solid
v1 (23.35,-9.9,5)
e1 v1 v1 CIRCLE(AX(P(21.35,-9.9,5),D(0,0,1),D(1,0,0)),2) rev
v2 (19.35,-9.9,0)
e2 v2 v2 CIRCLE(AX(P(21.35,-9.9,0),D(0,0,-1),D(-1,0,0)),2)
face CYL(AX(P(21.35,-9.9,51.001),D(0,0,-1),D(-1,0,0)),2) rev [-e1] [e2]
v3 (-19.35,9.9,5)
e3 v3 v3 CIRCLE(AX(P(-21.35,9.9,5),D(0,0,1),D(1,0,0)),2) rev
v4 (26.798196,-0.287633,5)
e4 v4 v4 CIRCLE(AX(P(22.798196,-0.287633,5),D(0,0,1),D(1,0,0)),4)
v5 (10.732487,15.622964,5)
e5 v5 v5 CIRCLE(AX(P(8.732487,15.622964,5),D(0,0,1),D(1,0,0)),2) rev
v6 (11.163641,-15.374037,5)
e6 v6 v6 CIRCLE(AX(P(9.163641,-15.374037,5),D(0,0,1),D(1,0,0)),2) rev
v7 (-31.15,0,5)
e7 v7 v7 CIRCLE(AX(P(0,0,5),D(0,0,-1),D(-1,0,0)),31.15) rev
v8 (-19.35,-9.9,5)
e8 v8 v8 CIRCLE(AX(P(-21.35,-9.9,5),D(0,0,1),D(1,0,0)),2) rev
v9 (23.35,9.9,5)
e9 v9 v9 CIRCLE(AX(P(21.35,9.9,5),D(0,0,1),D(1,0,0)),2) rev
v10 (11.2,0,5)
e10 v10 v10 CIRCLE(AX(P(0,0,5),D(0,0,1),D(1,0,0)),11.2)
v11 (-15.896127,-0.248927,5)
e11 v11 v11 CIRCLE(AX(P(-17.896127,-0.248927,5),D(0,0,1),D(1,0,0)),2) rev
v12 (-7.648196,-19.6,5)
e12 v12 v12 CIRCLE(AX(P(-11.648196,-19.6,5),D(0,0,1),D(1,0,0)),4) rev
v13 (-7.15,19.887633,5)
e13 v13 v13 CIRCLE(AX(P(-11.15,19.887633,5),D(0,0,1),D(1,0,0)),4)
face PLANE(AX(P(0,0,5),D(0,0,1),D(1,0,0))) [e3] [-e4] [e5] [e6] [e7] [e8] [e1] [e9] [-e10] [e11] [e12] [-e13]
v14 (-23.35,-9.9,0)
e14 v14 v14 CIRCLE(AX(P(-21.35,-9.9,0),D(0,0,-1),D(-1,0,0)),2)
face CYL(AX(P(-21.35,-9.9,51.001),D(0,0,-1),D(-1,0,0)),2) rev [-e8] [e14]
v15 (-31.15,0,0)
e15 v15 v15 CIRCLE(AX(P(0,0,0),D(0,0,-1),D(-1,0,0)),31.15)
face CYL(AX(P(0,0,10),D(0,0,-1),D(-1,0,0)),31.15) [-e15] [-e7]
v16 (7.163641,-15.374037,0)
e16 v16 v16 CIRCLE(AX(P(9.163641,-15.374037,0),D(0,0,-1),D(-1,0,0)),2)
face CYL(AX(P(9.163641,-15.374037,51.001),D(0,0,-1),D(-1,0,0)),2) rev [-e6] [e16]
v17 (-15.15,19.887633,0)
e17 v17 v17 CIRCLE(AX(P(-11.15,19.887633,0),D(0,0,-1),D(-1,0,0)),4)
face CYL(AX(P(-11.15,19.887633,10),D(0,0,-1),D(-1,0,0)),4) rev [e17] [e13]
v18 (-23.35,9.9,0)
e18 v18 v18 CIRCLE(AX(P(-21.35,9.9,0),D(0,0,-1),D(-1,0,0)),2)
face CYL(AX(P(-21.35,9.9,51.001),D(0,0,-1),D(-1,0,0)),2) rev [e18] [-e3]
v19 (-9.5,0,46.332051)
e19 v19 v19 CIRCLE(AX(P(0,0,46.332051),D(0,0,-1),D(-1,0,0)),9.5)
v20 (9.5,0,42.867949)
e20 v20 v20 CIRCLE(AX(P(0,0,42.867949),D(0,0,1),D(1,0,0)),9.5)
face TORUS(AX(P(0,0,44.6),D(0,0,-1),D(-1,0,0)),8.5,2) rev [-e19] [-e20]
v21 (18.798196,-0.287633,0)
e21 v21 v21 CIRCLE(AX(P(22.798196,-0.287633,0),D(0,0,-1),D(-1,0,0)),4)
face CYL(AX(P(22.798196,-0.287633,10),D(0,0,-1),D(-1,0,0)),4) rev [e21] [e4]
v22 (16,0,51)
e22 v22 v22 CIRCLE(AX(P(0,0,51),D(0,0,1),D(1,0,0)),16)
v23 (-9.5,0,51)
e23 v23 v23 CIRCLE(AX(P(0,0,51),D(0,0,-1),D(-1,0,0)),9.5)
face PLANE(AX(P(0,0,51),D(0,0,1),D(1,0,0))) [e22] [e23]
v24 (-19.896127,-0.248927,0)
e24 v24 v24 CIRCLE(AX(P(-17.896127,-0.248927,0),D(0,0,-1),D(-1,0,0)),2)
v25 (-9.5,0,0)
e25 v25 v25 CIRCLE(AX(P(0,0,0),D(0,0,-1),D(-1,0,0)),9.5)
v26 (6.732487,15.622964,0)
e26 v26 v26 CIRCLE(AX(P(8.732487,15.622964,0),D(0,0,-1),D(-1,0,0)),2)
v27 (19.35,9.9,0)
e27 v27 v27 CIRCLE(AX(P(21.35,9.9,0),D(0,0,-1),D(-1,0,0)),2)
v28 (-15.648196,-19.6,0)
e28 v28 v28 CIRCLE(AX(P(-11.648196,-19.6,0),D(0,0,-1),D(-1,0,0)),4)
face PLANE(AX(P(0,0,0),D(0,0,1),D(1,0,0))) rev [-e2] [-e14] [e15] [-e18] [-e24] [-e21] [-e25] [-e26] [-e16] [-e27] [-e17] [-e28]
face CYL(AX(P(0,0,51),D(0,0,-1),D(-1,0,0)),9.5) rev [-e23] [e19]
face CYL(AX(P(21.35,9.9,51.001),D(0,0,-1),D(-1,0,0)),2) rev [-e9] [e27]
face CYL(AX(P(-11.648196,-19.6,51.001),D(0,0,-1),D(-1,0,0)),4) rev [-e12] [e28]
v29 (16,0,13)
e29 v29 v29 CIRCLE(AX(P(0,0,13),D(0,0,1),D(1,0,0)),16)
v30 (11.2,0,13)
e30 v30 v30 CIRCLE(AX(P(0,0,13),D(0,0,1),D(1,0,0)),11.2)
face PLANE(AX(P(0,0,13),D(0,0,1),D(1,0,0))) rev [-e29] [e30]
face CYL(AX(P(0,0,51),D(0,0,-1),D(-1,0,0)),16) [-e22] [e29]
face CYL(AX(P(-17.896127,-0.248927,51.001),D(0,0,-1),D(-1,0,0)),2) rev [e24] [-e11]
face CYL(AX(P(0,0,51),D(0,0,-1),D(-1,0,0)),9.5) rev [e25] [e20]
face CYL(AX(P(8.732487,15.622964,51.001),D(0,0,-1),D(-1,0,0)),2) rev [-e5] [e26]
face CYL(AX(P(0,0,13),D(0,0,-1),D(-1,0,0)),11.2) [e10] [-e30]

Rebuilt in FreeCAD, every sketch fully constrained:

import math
import FreeCAD as App
import Part
import Sketcher

V = App.Vector


def edges_at(feature, points):
    """Names of the edges that pass closest to the given points."""
    edges = feature.Shape.Edges
    near = lambda p: min(range(len(edges)), key=lambda i: edges[i].distToShape(Part.Vertex(*p))[0])
    return sorted({f"Edge{near(p) + 1}" for p in points})


def add_polygon(sketch, points):
    """Adds a closed chain of lines whose ends are joined by coincident constraints."""
    first, n = sketch.GeometryCount, len(points)
    for a, b in zip(points, points[1:] + points[:1]):
        sketch.addGeometry(Part.LineSegment(App.Vector(*a, 0), App.Vector(*b, 0)), False)
    for i in range(n):
        sketch.addConstraint(Sketcher.Constraint("Coincident", first + i, 2, first + (i + 1) % n, 1))

doc = App.newDocument("Part")
params = doc.addObject("Spreadsheet::Sheet", "Params")
for row, (alias, value) in enumerate([
    ("sketch1_diameter", "63.3 mm"),
    ("pad1_length", "5 mm"),
    ("chamfer_size", "0.5 mm"),
    ("sketch2_diameter", "22.4 mm"),
    ("pad2_length", "8 mm"),
    ("sketch3_diameter", "32 mm"),
    ("pad3_length", "38 mm"),
    ("sketch4_diameter", "19 mm"),
    ("sketch5_diameter", "4 mm"),
    ("sketch6_diameter", "4 mm"),
    ("sketch7_diameter", "4 mm"),
    ("sketch8_diameter", "4 mm"),
    ("sketch9_diameter", "8 mm"),
    ("sketch10_diameter", "4 mm"),
    ("sketch11_diameter", "4 mm"),
    ("sketch12_diameter", "4 mm"),
    ("sketch13_radius", "2 mm"),
    ("groove_angle", "360 deg"),
    ("sketch14_diameter", "8 mm"),
    ("sketch14_diameter2", "62.3 mm"),
    ("pocket10_length", "10 mm"),
], start=1):
    params.set(f"A{row}", alias)
    params.set(f"B{row}", "=" + value)
    params.setAlias(f"B{row}", alias)

body = doc.addObject("PartDesign::Body", "Body")

# Sketch on XY plane
sketch1 = body.newObject("Sketcher::SketchObject", "Sketch")
sketch1.AttachmentSupport = (doc.getObject("XY_Plane"), [""])
sketch1.MapMode = "FlatFace"
sketch1.addGeometry(Part.Circle(V(0, 0, 0), V(0, 0, 1), 32), False)
sketch1.addConstraint([
    Sketcher.Constraint("Coincident", 0, 3, -1, 1),
    Sketcher.Constraint("Diameter", 0, 63.3),
])
sketch1.setExpression("Constraints[1]", "Params.sketch1_diameter")
pad1 = body.newObject("PartDesign::Pad", "Pad")
pad1.Profile = sketch1
pad1.setExpression("Length", "Params.pad1_length")
doc.recompute()

chamfer = body.newObject("PartDesign::Chamfer", "Chamfer")
chamfer.Base = (pad1, edges_at(pad1, [(-31.65, 0, 0), (-31.65, 0, 5)]))
chamfer.setExpression("Size", "Params.chamfer_size")

# Sketch on XY plane
sketch2 = body.newObject("Sketcher::SketchObject", "Sketch001")
sketch2.AttachmentSupport = (doc.getObject("XY_Plane"), [""])
sketch2.MapMode = "FlatFace"
sketch2.AttachmentOffset = App.Placement(V(0, 0, 5), App.Rotation())
sketch2.addGeometry(Part.Circle(V(0, 0, 0), V(0, 0, 1), 11), False)
sketch2.addConstraint([
    Sketcher.Constraint("Coincident", 0, 3, -1, 1),
    Sketcher.Constraint("Diameter", 0, 22.4),
])
sketch2.setExpression("Constraints[1]", "Params.sketch2_diameter")
pad2 = body.newObject("PartDesign::Pad", "Pad001")
pad2.Profile = sketch2
pad2.setExpression("Length", "Params.pad2_length")

# Sketch on XY plane
sketch3 = body.newObject("Sketcher::SketchObject", "Sketch002")
sketch3.AttachmentSupport = (doc.getObject("XY_Plane"), [""])
sketch3.MapMode = "FlatFace"
sketch3.AttachmentOffset = App.Placement(V(0, 0, 13), App.Rotation())
sketch3.addGeometry(Part.Circle(V(0, 0, 0), V(0, 0, 1), 16), False)
sketch3.addConstraint([
    Sketcher.Constraint("Coincident", 0, 3, -1, 1),
    Sketcher.Constraint("Diameter", 0, 32.0),
])
sketch3.setExpression("Constraints[1]", "Params.sketch3_diameter")
pad3 = body.newObject("PartDesign::Pad", "Pad002")
pad3.Profile = sketch3
pad3.setExpression("Length", "Params.pad3_length")

# Sketch on XY plane
sketch4 = body.newObject("Sketcher::SketchObject", "Sketch003")
sketch4.AttachmentSupport = (doc.getObject("XY_Plane"), [""])
sketch4.MapMode = "FlatFace"
sketch4.addGeometry(Part.Circle(V(0, 0, 0), V(0, 0, 1), 10), False)
sketch4.addConstraint([
    Sketcher.Constraint("Coincident", 0, 3, -1, 1),
    Sketcher.Constraint("Diameter", 0, 19.0),
])
sketch4.setExpression("Constraints[1]", "Params.sketch4_diameter")
pocket1 = body.newObject("PartDesign::Pocket", "Pocket")
pocket1.Profile = sketch4
pocket1.Type = "ThroughAll"
pocket1.Reversed = True

# Sketch on XY plane
sketch5 = body.newObject("Sketcher::SketchObject", "Sketch004")
sketch5.AttachmentSupport = (doc.getObject("XY_Plane"), [""])
sketch5.MapMode = "FlatFace"
sketch5.addGeometry(Part.Circle(V(-21.4, 9.9, 0), V(0, 0, 1), 2), False)
sketch5.addConstraint([
    Sketcher.Constraint("Diameter", 0, 4.0),
    Sketcher.Constraint("DistanceY", -1, 1, 0, 3, 9.9),
    Sketcher.Constraint("DistanceX", 0, 3, -1, 1, 21.35),
])
sketch5.setExpression("Constraints[0]", "Params.sketch5_diameter")
pocket2 = body.newObject("PartDesign::Pocket", "Pocket001")
pocket2.Profile = sketch5
pocket2.Type = "UpToFirst"
pocket2.Reversed = True

# Sketch on XY plane
sketch6 = body.newObject("Sketcher::SketchObject", "Sketch005")
sketch6.AttachmentSupport = (doc.getObject("XY_Plane"), [""])
sketch6.MapMode = "FlatFace"
sketch6.addGeometry(Part.Circle(V(21.4, 9.9, 0), V(0, 0, 1), 2), False)
sketch6.addConstraint([
    Sketcher.Constraint("Diameter", 0, 4.0),
    Sketcher.Constraint("DistanceY", -1, 1, 0, 3, 9.9),
    Sketcher.Constraint("DistanceX", -1, 1, 0, 3, 21.35),
])
sketch6.setExpression("Constraints[0]", "Params.sketch6_diameter")
pocket3 = body.newObject("PartDesign::Pocket", "Pocket002")
pocket3.Profile = sketch6
pocket3.Type = "UpToFirst"
pocket3.Reversed = True

# Sketch on XY plane
sketch7 = body.newObject("Sketcher::SketchObject", "Sketch006")
sketch7.AttachmentSupport = (doc.getObject("XY_Plane"), [""])
sketch7.MapMode = "FlatFace"
sketch7.addGeometry(Part.Circle(V(21.4, -9.9, 0), V(0, 0, 1), 2), False)
sketch7.addConstraint([
    Sketcher.Constraint("Diameter", 0, 4.0),
    Sketcher.Constraint("DistanceY", 0, 3, -1, 1, 9.9),
    Sketcher.Constraint("DistanceX", -1, 1, 0, 3, 21.35),
])
sketch7.setExpression("Constraints[0]", "Params.sketch7_diameter")
pocket4 = body.newObject("PartDesign::Pocket", "Pocket003")
pocket4.Profile = sketch7
pocket4.Type = "UpToFirst"
pocket4.Reversed = True

# Sketch on XY plane
sketch8 = body.newObject("Sketcher::SketchObject", "Sketch007")
sketch8.AttachmentSupport = (doc.getObject("XY_Plane"), [""])
sketch8.MapMode = "FlatFace"
sketch8.addGeometry(Part.Circle(V(-21.4, -9.9, 0), V(0, 0, 1), 2), False)
sketch8.addConstraint([
    Sketcher.Constraint("Diameter", 0, 4.0),
    Sketcher.Constraint("DistanceY", 0, 3, -1, 1, 9.9),
    Sketcher.Constraint("DistanceX", 0, 3, -1, 1, 21.35),
])
sketch8.setExpression("Constraints[0]", "Params.sketch8_diameter")
pocket5 = body.newObject("PartDesign::Pocket", "Pocket004")
pocket5.Profile = sketch8
pocket5.Type = "UpToFirst"
pocket5.Reversed = True

# Sketch on XY plane
sketch9 = body.newObject("Sketcher::SketchObject", "Sketch008")
sketch9.AttachmentSupport = (doc.getObject("XY_Plane"), [""])
sketch9.MapMode = "FlatFace"
sketch9.addGeometry(Part.Circle(V(-11.6, -19.6, 0), V(0, 0, 1), 4), False)
sketch9.addConstraint([
    Sketcher.Constraint("Diameter", 0, 8.0),
    Sketcher.Constraint("DistanceY", 0, 3, -1, 1, 19.6),
    Sketcher.Constraint("DistanceX", 0, 3, -1, 1, 11.648196),
])
sketch9.setExpression("Constraints[0]", "Params.sketch9_diameter")
pocket6 = body.newObject("PartDesign::Pocket", "Pocket005")
pocket6.Profile = sketch9
pocket6.Type = "UpToFirst"
pocket6.Reversed = True

# Sketch on XY plane
sketch10 = body.newObject("Sketcher::SketchObject", "Sketch009")
sketch10.AttachmentSupport = (doc.getObject("XY_Plane"), [""])
sketch10.MapMode = "FlatFace"
sketch10.addGeometry(Part.Circle(V(8.7, 15.6, 0), V(0, 0, 1), 2), False)
sketch10.addConstraint([
    Sketcher.Constraint("Diameter", 0, 4.0),
    Sketcher.Constraint("DistanceX", -1, 1, 0, 3, 8.732487),
    Sketcher.Constraint("DistanceY", -1, 1, 0, 3, 15.622964),
])
sketch10.setExpression("Constraints[0]", "Params.sketch10_diameter")
pocket7 = body.newObject("PartDesign::Pocket", "Pocket006")
pocket7.Profile = sketch10
pocket7.Type = "UpToFirst"
pocket7.Reversed = True

# Sketch on XY plane
sketch11 = body.newObject("Sketcher::SketchObject", "Sketch010")
sketch11.AttachmentSupport = (doc.getObject("XY_Plane"), [""])
sketch11.MapMode = "FlatFace"
sketch11.addGeometry(Part.Circle(V(9.2, -15.4, 0), V(0, 0, 1), 2), False)
sketch11.addConstraint([
    Sketcher.Constraint("Diameter", 0, 4.0),
    Sketcher.Constraint("DistanceX", -1, 1, 0, 3, 9.163641),
    Sketcher.Constraint("DistanceY", 0, 3, -1, 1, 15.374037),
])
sketch11.setExpression("Constraints[0]", "Params.sketch11_diameter")
pocket8 = body.newObject("PartDesign::Pocket", "Pocket007")
pocket8.Profile = sketch11
pocket8.Type = "UpToFirst"
pocket8.Reversed = True

# Sketch on XY plane
sketch12 = body.newObject("Sketcher::SketchObject", "Sketch011")
sketch12.AttachmentSupport = (doc.getObject("XY_Plane"), [""])
sketch12.MapMode = "FlatFace"
sketch12.addGeometry(Part.Circle(V(-17.9, -0.2, 0), V(0, 0, 1), 2), False)
sketch12.addConstraint([
    Sketcher.Constraint("Diameter", 0, 4.0),
    Sketcher.Constraint("DistanceX", 0, 3, -1, 1, 17.896127),
    Sketcher.Constraint("DistanceY", 0, 3, -1, 1, 0.248927),
])
sketch12.setExpression("Constraints[0]", "Params.sketch12_diameter")
pocket9 = body.newObject("PartDesign::Pocket", "Pocket008")
pocket9.Profile = sketch12
pocket9.Type = "UpToFirst"
pocket9.Reversed = True

# Sketch on XZ plane
sketch13 = body.newObject("Sketcher::SketchObject", "Sketch012")
sketch13.AttachmentSupport = (doc.getObject("XZ_Plane"), [""])
sketch13.MapMode = "FlatFace"
sketch13.addGeometry([
    Part.LineSegment(V(-8.5, 46.6, 0), V(-8.5, 42.6, 0)),
    Part.ArcOfCircle(Part.Circle(V(-8.5, 44.6, 0), V(0, 0, 1), 2), math.radians(90), math.radians(270)),
], False)
sketch13.addConstraint([
    Sketcher.Constraint("Coincident", 0, 1, 1, 1),
    Sketcher.Constraint("Coincident", 1, 2, 0, 2),
    Sketcher.Constraint("Vertical", 0),
    Sketcher.Constraint("Vertical", 1, 3, 0, 1),
    Sketcher.Constraint("Radius", 1, 2.0),
    Sketcher.Constraint("DistanceX", 1, 3, -1, 1, 8.5),
    Sketcher.Constraint("DistanceY", -1, 1, 1, 3, 44.6),
])
sketch13.setExpression("Constraints[4]", "Params.sketch13_radius")
groove = body.newObject("PartDesign::Groove", "Groove")
groove.Profile = sketch13
groove.ReferenceAxis = (sketch13, ["V_Axis"])
groove.setExpression("Angle", "Params.groove_angle")

# Sketch on XY plane
sketch14 = body.newObject("Sketcher::SketchObject", "Sketch013")
sketch14.AttachmentSupport = (doc.getObject("XY_Plane"), [""])
sketch14.MapMode = "FlatFace"
add_polygon(sketch14, [(43, 43), (43, -43), (-43, -43), (-43, 43)])  # lines 0-3
sketch14.addGeometry(Part.Circle(V(0, 0, 0), V(0, 0, 1), 31.1), False)  # 4
sketch14.addGeometry(Part.Circle(V(22.8, -0.3, 0), V(0, 0, 1), 4), False)  # 5
sketch14.addGeometry(Part.Circle(V(-11.2, 19.9, 0), V(0, 0, 1), 4), False)  # 6
sketch14.addConstraint([
    Sketcher.Constraint("Vertical", 0),
    Sketcher.Constraint("Horizontal", 1),
    Sketcher.Constraint("Vertical", 2),
    Sketcher.Constraint("Horizontal", 3),
    Sketcher.Constraint("Coincident", 4, 3, -1, 1),
    Sketcher.Constraint("Equal", 5, 6),
    Sketcher.Constraint("Symmetric", 0, 2, 2, 2, -1, 1),
    Sketcher.Constraint("Equal", 3, 0),
    Sketcher.Constraint("Diameter", 5, 8.0),
    Sketcher.Constraint("Diameter", 4, 62.3),
    Sketcher.Constraint("DistanceX", 1, 2, 1, 1, 85.906),
    Sketcher.Constraint("DistanceX", 6, 3, -1, 1, 11.15),
    Sketcher.Constraint("DistanceX", -1, 1, 5, 3, 22.798196),
    Sketcher.Constraint("DistanceY", 5, 3, -1, 1, 0.287633),
    Sketcher.Constraint("DistanceY", -1, 1, 6, 3, 19.887633),
])
sketch14.setExpression("Constraints[12]", "Params.sketch14_diameter")
sketch14.setExpression("Constraints[13]", "Params.sketch14_diameter2")
pocket10 = body.newObject("PartDesign::Pocket", "Pocket009")
pocket10.Profile = sketch14
pocket10.setExpression("Length", "Params.pocket10_length")
pocket10.Reversed = True

doc.recompute()
